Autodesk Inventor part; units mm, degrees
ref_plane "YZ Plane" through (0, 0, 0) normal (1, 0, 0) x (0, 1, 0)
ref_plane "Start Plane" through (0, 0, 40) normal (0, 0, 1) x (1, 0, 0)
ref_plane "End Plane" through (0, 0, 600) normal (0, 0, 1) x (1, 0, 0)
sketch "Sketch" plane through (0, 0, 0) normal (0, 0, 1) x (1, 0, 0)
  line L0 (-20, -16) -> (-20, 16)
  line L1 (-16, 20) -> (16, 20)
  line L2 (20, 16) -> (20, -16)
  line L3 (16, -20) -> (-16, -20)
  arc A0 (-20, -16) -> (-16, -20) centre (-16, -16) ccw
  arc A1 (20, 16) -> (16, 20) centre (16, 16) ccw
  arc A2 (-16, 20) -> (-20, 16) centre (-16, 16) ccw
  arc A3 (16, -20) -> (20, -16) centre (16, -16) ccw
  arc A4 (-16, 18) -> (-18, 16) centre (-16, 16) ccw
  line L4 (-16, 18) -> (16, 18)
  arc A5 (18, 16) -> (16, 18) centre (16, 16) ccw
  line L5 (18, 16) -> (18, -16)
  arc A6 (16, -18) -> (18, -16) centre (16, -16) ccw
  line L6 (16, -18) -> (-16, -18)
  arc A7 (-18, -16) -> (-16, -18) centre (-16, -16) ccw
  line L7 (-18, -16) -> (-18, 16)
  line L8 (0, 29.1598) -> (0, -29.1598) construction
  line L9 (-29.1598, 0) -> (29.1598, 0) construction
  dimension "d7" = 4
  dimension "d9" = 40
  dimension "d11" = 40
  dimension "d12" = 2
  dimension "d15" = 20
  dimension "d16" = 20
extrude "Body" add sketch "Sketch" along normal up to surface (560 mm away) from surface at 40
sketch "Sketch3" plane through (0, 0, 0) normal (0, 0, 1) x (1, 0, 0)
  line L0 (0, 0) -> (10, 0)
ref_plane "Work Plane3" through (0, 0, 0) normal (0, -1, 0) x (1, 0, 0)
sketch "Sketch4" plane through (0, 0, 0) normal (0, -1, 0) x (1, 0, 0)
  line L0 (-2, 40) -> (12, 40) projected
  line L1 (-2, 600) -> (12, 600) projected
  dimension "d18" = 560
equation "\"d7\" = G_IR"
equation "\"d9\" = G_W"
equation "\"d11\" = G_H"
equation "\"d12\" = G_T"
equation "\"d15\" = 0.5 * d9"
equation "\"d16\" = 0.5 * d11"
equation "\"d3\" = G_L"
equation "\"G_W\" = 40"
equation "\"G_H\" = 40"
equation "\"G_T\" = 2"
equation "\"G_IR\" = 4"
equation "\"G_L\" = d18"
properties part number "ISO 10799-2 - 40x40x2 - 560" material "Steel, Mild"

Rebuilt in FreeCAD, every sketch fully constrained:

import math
import FreeCAD as App
import Part
import Sketcher

doc = App.newDocument("Part")
params = doc.addObject("Spreadsheet::Sheet", "Params")
for row, (alias, value) in enumerate([
    ("sketch1_radius", "4 mm"),
    ("sketch1_radius2", "2 mm"),
    ("pad1_length", "560 mm"),
], start=1):
    params.set(f"A{row}", alias)
    params.set(f"B{row}", "=" + value)
    params.setAlias(f"B{row}", alias)

body = doc.addObject("PartDesign::Body", "Body")

# Sketch on XY plane
sketch1 = doc.addObject("Sketcher::SketchObject", "Sketch")
body.addObject(sketch1)
sketch1.AttachmentSupport = (doc.XY_Plane, [""])
sketch1.MapMode = "FlatFace"
sketch1.AttachmentOffset = App.Placement(App.Vector(0, 0, 40), App.Rotation())
sketch1.addGeometry(Part.LineSegment(App.Vector(-20, 16, 0), App.Vector(-20, -16, 0)), False)
sketch1.addGeometry(Part.ArcOfCircle(Part.Circle(App.Vector(-16, -16, 0), App.Vector(0, 0, 1), 4), math.radians(180), math.radians(270)), False)
sketch1.addGeometry(Part.LineSegment(App.Vector(-16, -20, 0), App.Vector(16, -20, 0)), False)
sketch1.addGeometry(Part.ArcOfCircle(Part.Circle(App.Vector(16, -16, 0), App.Vector(0, 0, 1), 4), math.radians(-90), math.radians(0)), False)
sketch1.addGeometry(Part.LineSegment(App.Vector(20, -16, 0), App.Vector(20, 16, 0)), False)
sketch1.addGeometry(Part.ArcOfCircle(Part.Circle(App.Vector(16, 16, 0), App.Vector(0, 0, 1), 4), math.radians(0), math.radians(90)), False)
sketch1.addGeometry(Part.LineSegment(App.Vector(16, 20, 0), App.Vector(-16, 20, 0)), False)
sketch1.addGeometry(Part.ArcOfCircle(Part.Circle(App.Vector(-16, 16, 0), App.Vector(0, 0, 1), 4), math.radians(90), math.radians(180)), False)
sketch1.addGeometry(Part.ArcOfCircle(Part.Circle(App.Vector(-16, 16, 0), App.Vector(0, 0, 1), 2), math.radians(90), math.radians(180)), False)
sketch1.addGeometry(Part.LineSegment(App.Vector(-16, 18, 0), App.Vector(16, 18, 0)), False)
sketch1.addGeometry(Part.ArcOfCircle(Part.Circle(App.Vector(16, 16, 0), App.Vector(0, 0, 1), 2), math.radians(0), math.radians(90)), False)
sketch1.addGeometry(Part.LineSegment(App.Vector(18, 16, 0), App.Vector(18, -16, 0)), False)
sketch1.addGeometry(Part.ArcOfCircle(Part.Circle(App.Vector(16, -16, 0), App.Vector(0, 0, 1), 2), math.radians(-90), math.radians(0)), False)
sketch1.addGeometry(Part.LineSegment(App.Vector(16, -18, 0), App.Vector(-16, -18, 0)), False)
sketch1.addGeometry(Part.ArcOfCircle(Part.Circle(App.Vector(-16, -16, 0), App.Vector(0, 0, 1), 2), math.radians(180), math.radians(270)), False)
sketch1.addGeometry(Part.LineSegment(App.Vector(-18, -16, 0), App.Vector(-18, 16, 0)), False)
sketch1.addConstraint(Sketcher.Constraint("Tangent", 0, 2, 1, 1))
sketch1.addConstraint(Sketcher.Constraint("Tangent", 1, 2, 2, 1))
sketch1.addConstraint(Sketcher.Constraint("Tangent", 2, 2, 3, 1))
sketch1.addConstraint(Sketcher.Constraint("Tangent", 3, 2, 4, 1))
sketch1.addConstraint(Sketcher.Constraint("Tangent", 4, 2, 5, 1))
sketch1.addConstraint(Sketcher.Constraint("Tangent", 5, 2, 6, 1))
sketch1.addConstraint(Sketcher.Constraint("Tangent", 6, 2, 7, 1))
sketch1.addConstraint(Sketcher.Constraint("Tangent", 7, 2, 0, 1))
sketch1.addConstraint(Sketcher.Constraint("Tangent", 8, 1, 9, 1))
sketch1.addConstraint(Sketcher.Constraint("Tangent", 9, 2, 10, 2))
sketch1.addConstraint(Sketcher.Constraint("Tangent", 10, 1, 11, 1))
sketch1.addConstraint(Sketcher.Constraint("Tangent", 11, 2, 12, 2))
sketch1.addConstraint(Sketcher.Constraint("Tangent", 12, 1, 13, 1))
sketch1.addConstraint(Sketcher.Constraint("Tangent", 13, 2, 14, 2))
sketch1.addConstraint(Sketcher.Constraint("Tangent", 14, 1, 15, 1))
sketch1.addConstraint(Sketcher.Constraint("Tangent", 15, 2, 8, 2))
sketch1.addConstraint(Sketcher.Constraint("Vertical", 0))
sketch1.addConstraint(Sketcher.Constraint("Horizontal", 2))
sketch1.addConstraint(Sketcher.Constraint("Vertical", 4))
sketch1.addConstraint(Sketcher.Constraint("Horizontal", 6))
sketch1.addConstraint(Sketcher.Constraint("Horizontal", 9))
sketch1.addConstraint(Sketcher.Constraint("Vertical", 11))
sketch1.addConstraint(Sketcher.Constraint("Horizontal", 13))
sketch1.addConstraint(Sketcher.Constraint("Vertical", 15))
sketch1.addConstraint(Sketcher.Constraint("Coincident", 8, 3, 7, 3))
sketch1.addConstraint(Sketcher.Constraint("Coincident", 10, 3, 5, 3))
sketch1.addConstraint(Sketcher.Constraint("Coincident", 12, 3, 3, 3))
sketch1.addConstraint(Sketcher.Constraint("Equal", 1, 3))
sketch1.addConstraint(Sketcher.Constraint("Equal", 3, 5))
sketch1.addConstraint(Sketcher.Constraint("Equal", 5, 7))
sketch1.addConstraint(Sketcher.Constraint("Equal", 12, 14))
sketch1.addConstraint(Sketcher.Constraint("Symmetric", 1, 3, 5, 3, -1, 1))
sketch1.addConstraint(Sketcher.Constraint("Equal", 13, 0))
sketch1.addConstraint(Sketcher.Constraint("Radius", 1, 4.0))
sketch1.addConstraint(Sketcher.Constraint("Radius", 8, 2.0))
sketch1.addConstraint(Sketcher.Constraint("DistanceX", 0, 2, -1, 1, 20.0))
sketch1.setExpression("Constraints[33]", "Params.sketch1_radius")
sketch1.setExpression("Constraints[34]", "Params.sketch1_radius2")
pad1 = doc.addObject("PartDesign::Pad", "Pad")
body.addObject(pad1)
pad1.Profile = sketch1
pad1.setExpression("Length", "Params.pad1_length")

doc.recompute()
